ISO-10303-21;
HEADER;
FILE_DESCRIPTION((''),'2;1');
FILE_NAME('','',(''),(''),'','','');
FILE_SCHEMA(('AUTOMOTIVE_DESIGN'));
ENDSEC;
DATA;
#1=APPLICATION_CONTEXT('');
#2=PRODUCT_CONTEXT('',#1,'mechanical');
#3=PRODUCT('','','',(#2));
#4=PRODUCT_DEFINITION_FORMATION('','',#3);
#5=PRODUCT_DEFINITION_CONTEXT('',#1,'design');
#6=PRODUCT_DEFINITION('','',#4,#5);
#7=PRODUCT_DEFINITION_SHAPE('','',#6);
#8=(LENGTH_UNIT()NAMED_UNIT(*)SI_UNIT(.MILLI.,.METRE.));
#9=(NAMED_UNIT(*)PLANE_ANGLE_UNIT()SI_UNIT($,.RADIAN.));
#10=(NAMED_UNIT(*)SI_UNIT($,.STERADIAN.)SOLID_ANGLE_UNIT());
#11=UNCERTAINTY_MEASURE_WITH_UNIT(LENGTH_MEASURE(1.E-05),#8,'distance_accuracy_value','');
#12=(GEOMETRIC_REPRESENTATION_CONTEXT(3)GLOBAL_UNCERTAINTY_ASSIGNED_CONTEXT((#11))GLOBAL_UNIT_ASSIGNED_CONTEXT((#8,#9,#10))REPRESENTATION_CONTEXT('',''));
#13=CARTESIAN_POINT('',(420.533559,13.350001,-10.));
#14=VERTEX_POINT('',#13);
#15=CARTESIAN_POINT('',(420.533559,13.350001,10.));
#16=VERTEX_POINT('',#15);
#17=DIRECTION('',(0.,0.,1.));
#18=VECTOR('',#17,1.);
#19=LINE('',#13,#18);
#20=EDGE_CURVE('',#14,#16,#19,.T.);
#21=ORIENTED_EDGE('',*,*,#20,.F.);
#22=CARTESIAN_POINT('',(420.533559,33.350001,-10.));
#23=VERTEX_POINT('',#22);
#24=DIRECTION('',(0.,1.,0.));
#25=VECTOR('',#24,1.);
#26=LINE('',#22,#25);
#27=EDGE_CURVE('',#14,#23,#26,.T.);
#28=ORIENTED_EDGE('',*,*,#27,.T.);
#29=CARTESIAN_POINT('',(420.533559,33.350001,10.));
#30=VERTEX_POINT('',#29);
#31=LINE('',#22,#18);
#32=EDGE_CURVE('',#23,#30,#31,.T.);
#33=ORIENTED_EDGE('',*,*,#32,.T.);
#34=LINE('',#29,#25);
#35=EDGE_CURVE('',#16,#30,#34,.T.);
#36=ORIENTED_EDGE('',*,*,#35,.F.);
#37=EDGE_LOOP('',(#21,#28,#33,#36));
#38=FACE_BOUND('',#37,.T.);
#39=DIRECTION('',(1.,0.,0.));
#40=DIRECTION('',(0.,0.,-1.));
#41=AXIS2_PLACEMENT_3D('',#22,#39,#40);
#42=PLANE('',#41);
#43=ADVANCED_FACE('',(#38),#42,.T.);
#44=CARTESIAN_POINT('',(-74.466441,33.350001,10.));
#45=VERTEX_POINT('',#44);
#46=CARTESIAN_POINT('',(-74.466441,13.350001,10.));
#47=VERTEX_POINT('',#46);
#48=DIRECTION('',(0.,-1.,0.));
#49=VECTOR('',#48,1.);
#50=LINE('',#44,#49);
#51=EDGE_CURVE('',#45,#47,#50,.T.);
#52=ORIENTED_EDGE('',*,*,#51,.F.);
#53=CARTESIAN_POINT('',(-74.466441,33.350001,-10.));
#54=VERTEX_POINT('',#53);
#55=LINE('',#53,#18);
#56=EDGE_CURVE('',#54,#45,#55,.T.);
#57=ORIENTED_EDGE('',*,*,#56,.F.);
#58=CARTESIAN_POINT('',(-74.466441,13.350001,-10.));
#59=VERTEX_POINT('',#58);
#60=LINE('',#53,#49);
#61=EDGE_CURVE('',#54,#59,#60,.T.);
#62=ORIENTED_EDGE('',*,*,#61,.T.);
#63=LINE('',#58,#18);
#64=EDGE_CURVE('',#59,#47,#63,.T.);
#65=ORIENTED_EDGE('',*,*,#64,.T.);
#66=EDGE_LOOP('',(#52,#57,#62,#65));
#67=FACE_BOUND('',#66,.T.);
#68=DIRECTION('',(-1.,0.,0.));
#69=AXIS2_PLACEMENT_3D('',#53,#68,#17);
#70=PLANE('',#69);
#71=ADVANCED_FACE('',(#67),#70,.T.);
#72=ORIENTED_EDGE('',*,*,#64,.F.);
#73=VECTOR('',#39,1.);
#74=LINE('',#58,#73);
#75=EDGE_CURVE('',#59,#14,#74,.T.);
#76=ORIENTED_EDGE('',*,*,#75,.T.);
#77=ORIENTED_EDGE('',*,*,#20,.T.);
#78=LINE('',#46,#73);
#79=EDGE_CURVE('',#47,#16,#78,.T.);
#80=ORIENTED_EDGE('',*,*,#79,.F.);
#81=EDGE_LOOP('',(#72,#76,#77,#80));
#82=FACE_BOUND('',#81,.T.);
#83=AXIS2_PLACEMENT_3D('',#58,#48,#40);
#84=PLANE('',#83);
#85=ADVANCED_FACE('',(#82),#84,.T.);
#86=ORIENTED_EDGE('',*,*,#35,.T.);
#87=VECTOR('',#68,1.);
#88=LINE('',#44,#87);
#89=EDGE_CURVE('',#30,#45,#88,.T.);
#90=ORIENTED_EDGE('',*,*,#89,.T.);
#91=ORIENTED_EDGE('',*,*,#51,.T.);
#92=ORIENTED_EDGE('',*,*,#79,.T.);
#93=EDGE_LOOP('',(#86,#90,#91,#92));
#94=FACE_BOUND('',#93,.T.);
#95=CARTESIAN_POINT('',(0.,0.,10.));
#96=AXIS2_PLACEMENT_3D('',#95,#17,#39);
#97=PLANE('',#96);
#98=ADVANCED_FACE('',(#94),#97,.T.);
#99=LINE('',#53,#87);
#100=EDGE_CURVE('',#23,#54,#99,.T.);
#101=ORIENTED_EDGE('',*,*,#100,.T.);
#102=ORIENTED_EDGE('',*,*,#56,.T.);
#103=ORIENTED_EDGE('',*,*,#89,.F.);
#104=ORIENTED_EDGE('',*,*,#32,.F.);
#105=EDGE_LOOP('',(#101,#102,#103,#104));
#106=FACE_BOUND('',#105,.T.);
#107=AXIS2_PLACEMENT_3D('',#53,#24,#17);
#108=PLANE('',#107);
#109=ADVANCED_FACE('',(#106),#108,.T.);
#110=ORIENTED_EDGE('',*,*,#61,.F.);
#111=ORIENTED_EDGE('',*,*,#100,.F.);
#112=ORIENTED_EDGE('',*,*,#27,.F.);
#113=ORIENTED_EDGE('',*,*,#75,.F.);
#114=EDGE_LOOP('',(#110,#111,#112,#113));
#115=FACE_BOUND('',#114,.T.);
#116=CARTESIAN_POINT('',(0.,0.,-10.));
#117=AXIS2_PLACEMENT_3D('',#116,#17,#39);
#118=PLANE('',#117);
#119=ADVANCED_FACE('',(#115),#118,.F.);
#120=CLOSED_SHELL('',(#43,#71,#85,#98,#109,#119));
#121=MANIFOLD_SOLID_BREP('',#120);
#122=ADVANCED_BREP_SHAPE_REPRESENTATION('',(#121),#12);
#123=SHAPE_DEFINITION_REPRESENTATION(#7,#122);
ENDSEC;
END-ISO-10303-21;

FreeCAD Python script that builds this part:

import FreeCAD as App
import Part
import Sketcher

V = App.Vector
Q = App.Units.Quantity

doc = App.newDocument("Part")
body = doc.addObject("PartDesign::Body", "Body")

sketch1 = doc.addObject("Sketcher::SketchObject", "Sketch")
body.addObject(sketch1)
sketch1.AttachmentSupport = (doc.XY_Plane, [""])
sketch1.MapMode = "FlatFace"
sketch1.addGeometry([
    Part.LineSegment(V(-74.466441, 33.350001, 0), V(-74.466441, 13.350001, 0)),
    Part.LineSegment(V(-74.466441, 13.350001, 0), V(420.533559, 13.350001, 0)),
    Part.LineSegment(V(420.533559, 13.350001, 0), V(420.533559, 33.350001, 0)),
    Part.LineSegment(V(420.533559, 33.350001, 0), V(-74.466441, 33.350001, 0)),
], False)
sketch1.addConstraint([
    Sketcher.Constraint("Coincident", 0, 2, 1, 1),
    Sketcher.Constraint("Coincident", 1, 2, 2, 1),
    Sketcher.Constraint("Coincident", 2, 2, 3, 1),
    Sketcher.Constraint("Coincident", 3, 2, 0, 1),
    Sketcher.Constraint("Vertical", 0),
    Sketcher.Constraint("Horizontal", 1),
    Sketcher.Constraint("Vertical", 2),
    Sketcher.Constraint("Horizontal", 3),
    Sketcher.Constraint("DistanceX", 1, 1, 1, 2, Q("495 mm")),
    Sketcher.Constraint("DistanceY", 0, 2, 0, 1, Q("20 mm")),
    Sketcher.Constraint("DistanceY", -1, 1, 0, 2, Q("13.350001 mm")),
    Sketcher.Constraint("DistanceX", 0, 2, -1, 1, Q("74.466441 mm")),
])
pad1 = doc.addObject("PartDesign::Pad", "Pad")
body.addObject(pad1)
pad1.Profile = sketch1
pad1.Type = "TwoLengths"
pad1.Length = 10
pad1.Length2 = 10

doc.recompute()
